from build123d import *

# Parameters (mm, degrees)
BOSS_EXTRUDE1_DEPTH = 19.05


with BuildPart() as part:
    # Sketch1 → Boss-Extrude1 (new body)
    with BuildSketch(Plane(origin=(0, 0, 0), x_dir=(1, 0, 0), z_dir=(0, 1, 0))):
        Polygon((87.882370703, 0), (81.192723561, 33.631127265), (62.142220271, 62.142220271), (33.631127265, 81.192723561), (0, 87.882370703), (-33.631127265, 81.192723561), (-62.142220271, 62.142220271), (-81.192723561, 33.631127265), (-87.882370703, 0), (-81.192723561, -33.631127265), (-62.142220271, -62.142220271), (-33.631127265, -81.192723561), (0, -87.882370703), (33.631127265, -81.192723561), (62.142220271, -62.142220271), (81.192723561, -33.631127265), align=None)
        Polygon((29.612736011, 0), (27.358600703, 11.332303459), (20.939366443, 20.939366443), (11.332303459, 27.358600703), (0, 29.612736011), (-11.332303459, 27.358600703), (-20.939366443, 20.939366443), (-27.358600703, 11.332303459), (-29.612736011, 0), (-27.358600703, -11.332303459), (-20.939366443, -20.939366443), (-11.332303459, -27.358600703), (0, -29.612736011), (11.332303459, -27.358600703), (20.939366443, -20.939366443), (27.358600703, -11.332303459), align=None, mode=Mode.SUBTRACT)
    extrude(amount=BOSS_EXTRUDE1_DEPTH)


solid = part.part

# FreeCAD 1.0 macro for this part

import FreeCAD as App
import Part
import Sketcher
Q = App.Units.Quantity


def add_polygon(sketch, points):
    """Adds a closed chain of lines whose ends are joined by coincident constraints."""
    first, n = sketch.GeometryCount, len(points)
    for a, b in zip(points, points[1:] + points[:1]):
        sketch.addGeometry(Part.LineSegment(App.Vector(*a, 0), App.Vector(*b, 0)), False)
    for i in range(n):
        sketch.addConstraint(Sketcher.Constraint("Coincident", first + i, 2, first + (i + 1) % n, 1))

doc = App.newDocument("Part")
params = doc.addObject("Spreadsheet::Sheet", "Params")
for row, (alias, value) in enumerate([
    ("sketch1_length", "1.35 in"),
    ("pad1_length", "0.75 in"),
], start=1):
    params.set(f"A{row}", alias)
    params.set(f"B{row}", "=" + value)
    params.setAlias(f"B{row}", alias)

body = doc.addObject("PartDesign::Body", "Body")

# Sketch on XZ plane
sketch1 = doc.addObject("Sketcher::SketchObject", "Sketch")
body.addObject(sketch1)
sketch1.AttachmentSupport = (doc.XZ_Plane, [""])
sketch1.MapMode = "FlatFace"
add_polygon(sketch1, [(87.882371, 0), (81.192724, -33.631127), (62.14222, -62.14222), (33.631127, -81.192724), (0, -87.882371), (-33.631127, -81.192724), (-62.14222, -62.14222), (-81.192724, -33.631127), (-87.882371, 0), (-81.192724, 33.631127), (-62.14222, 62.14222), (-33.631127, 81.192724), (0, 87.882371), (33.631127, 81.192724), (62.14222, 62.14222), (81.192724, 33.631127)])  # lines 0-15
add_polygon(sketch1, [(27.358601, -11.332303), (29.612736, 0), (27.358601, 11.332303), (20.939366, 20.939366), (11.332303, 27.358601), (0, 29.612736), (-11.332303, 27.358601), (-20.939366, 20.939366), (-27.358601, 11.332303), (-29.612736, 0), (-27.358601, -11.332303), (-20.939366, -20.939366), (-11.332303, -27.358601), (0, -29.612736), (11.332303, -27.358601), (20.939366, -20.939366)])  # lines 16-31
sketch1.addConstraint([
    Sketcher.Constraint("Symmetric", 0, 2, 8, 2, -1, 1),
    Sketcher.Constraint("Symmetric", 1, 2, 9, 2, -1, 1),
    Sketcher.Constraint("Symmetric", 2, 2, 10, 2, -1, 1),
    Sketcher.Constraint("Symmetric", 3, 2, 11, 2, -1, 1),
    Sketcher.Constraint("Symmetric", 4, 2, 12, 2, -1, 1),
    Sketcher.Constraint("Symmetric", 5, 2, 13, 2, -1, 1),
    Sketcher.Constraint("Symmetric", 6, 2, 14, 2, -1, 1),
    Sketcher.Constraint("Symmetric", 7, 2, 15, 2, -1, 1),
    Sketcher.Constraint("Symmetric", 16, 2, 24, 2, -1, 1),
    Sketcher.Constraint("Symmetric", 17, 2, 25, 2, -1, 1),
    Sketcher.Constraint("Symmetric", 18, 2, 26, 2, -1, 1),
    Sketcher.Constraint("Symmetric", 19, 2, 27, 2, -1, 1),
    Sketcher.Constraint("Symmetric", 20, 2, 28, 2, -1, 1),
    Sketcher.Constraint("Symmetric", 21, 2, 29, 2, -1, 1),
    Sketcher.Constraint("Symmetric", 22, 2, 30, 2, -1, 1),
    Sketcher.Constraint("Symmetric", 23, 2, 31, 2, -1, 1),
    Sketcher.Constraint("Symmetric", 2, 2, 4, 2, -2),
    Sketcher.Constraint("Symmetric", 1, 2, 5, 2, -2),
    Sketcher.Constraint("Symmetric", 0, 2, 6, 2, -2),
    Sketcher.Constraint("Symmetric", 19, 2, 21, 2, -2),
    Sketcher.Constraint("Symmetric", 18, 2, 22, 2, -2),
    Sketcher.Constraint("Symmetric", 17, 2, 23, 2, -2),
    Sketcher.Constraint("PointOnObject", 3, 2, -2),
    Sketcher.Constraint("PointOnObject", 7, 2, -1),
    Sketcher.Constraint("PointOnObject", 16, 2, -1),
    Sketcher.Constraint("PointOnObject", 20, 2, -2),
    Sketcher.Constraint("Perpendicular", 0, 4),
    Sketcher.Constraint("Perpendicular", 1, 5),
    Sketcher.Constraint("Perpendicular", 12, 16),
    Sketcher.Constraint("Parallel", 14, 18),
    Sketcher.Constraint("Parallel", 13, 19),
    Sketcher.Constraint("Perpendicular", 16, 20),
    Sketcher.Constraint("Equal", 0, 1),
    Sketcher.Constraint("Equal", 1, 2),
    Sketcher.Constraint("Equal", 2, 3),
    Sketcher.Constraint("Equal", 17, 18),
    Sketcher.Constraint("Equal", 18, 19),
    Sketcher.Constraint("Equal", 19, 20),
    Sketcher.Constraint("Distance", 0, Q("1.35 in")),
    Sketcher.Constraint("Angle", 0, Q("-101.25 deg")),
    Sketcher.Constraint("Angle", 1, Q("-123.75 deg")),
    Sketcher.Constraint("DistanceX", -1, 1, 17, 2, Q("27.358601 mm")),
])
sketch1.setExpression("Constraints[70]", "Params.sketch1_length")
pad1 = doc.addObject("PartDesign::Pad", "Pad")
body.addObject(pad1)
pad1.Profile = sketch1
pad1.setExpression("Length", "Params.pad1_length")
pad1.Reversed = True

doc.recompute()
